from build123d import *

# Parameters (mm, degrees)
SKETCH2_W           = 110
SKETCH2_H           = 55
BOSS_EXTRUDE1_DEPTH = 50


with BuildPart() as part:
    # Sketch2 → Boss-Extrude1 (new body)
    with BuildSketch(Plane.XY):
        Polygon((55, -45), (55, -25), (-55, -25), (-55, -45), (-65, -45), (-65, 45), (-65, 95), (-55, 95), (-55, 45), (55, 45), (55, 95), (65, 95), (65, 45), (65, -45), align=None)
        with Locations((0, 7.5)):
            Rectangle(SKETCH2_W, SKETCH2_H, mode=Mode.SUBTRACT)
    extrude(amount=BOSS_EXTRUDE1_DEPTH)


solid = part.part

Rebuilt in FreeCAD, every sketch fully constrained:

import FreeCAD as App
import Part
import Sketcher
Q = App.Units.Quantity

doc = App.newDocument("Part")
body = doc.addObject("PartDesign::Body", "Body")

# Sketch on XY plane
sketch1 = body.newObject("Sketcher::SketchObject", "Sketch")
sketch1.AttachmentSupport = (doc.getObject("XY_Plane"), [""])
sketch1.MapMode = "FlatFace"
sketch1.addGeometry([
    Part.LineSegment(App.Vector(55, -25, 0), App.Vector(55, -45, 0)),  # 0
    Part.LineSegment(App.Vector(55, -45, 0), App.Vector(65, -45, 0)),  # 1
    Part.LineSegment(App.Vector(65, -45, 0), App.Vector(65, 95, 0)),  # 2
    Part.LineSegment(App.Vector(65, 95, 0), App.Vector(55, 95, 0)),  # 3
    Part.LineSegment(App.Vector(55, 95, 0), App.Vector(55, 45, 0)),  # 4
    Part.LineSegment(App.Vector(55, 45, 0), App.Vector(-55, 45, 0)),  # 5
    Part.LineSegment(App.Vector(-55, 45, 0), App.Vector(-55, 95, 0)),  # 6
    Part.LineSegment(App.Vector(-55, 95, 0), App.Vector(-65, 95, 0)),  # 7
    Part.LineSegment(App.Vector(-65, 95, 0), App.Vector(-65, -45, 0)),  # 8
    Part.LineSegment(App.Vector(-65, -45, 0), App.Vector(-55, -45, 0)),  # 9
    Part.LineSegment(App.Vector(-55, -45, 0), App.Vector(-55, -25, 0)),  # 10
    Part.LineSegment(App.Vector(-55, -25, 0), App.Vector(55, -25, 0)),  # 11
    Part.LineSegment(App.Vector(-55, -20, 0), App.Vector(-55, 35, 0)),  # 12
    Part.LineSegment(App.Vector(-55, 35, 0), App.Vector(55, 35, 0)),  # 13
    Part.LineSegment(App.Vector(55, 35, 0), App.Vector(55, -20, 0)),  # 14
    Part.LineSegment(App.Vector(55, -20, 0), App.Vector(-55, -20, 0)),  # 15
], False)
sketch1.addConstraint([
    Sketcher.Constraint("Coincident", 0, 2, 1, 1),
    Sketcher.Constraint("Coincident", 1, 2, 2, 1),
    Sketcher.Constraint("Coincident", 2, 2, 3, 1),
    Sketcher.Constraint("Coincident", 3, 2, 4, 1),
    Sketcher.Constraint("Coincident", 4, 2, 5, 1),
    Sketcher.Constraint("Coincident", 5, 2, 6, 1),
    Sketcher.Constraint("Coincident", 6, 2, 7, 1),
    Sketcher.Constraint("Coincident", 7, 2, 8, 1),
    Sketcher.Constraint("Coincident", 8, 2, 9, 1),
    Sketcher.Constraint("Coincident", 9, 2, 10, 1),
    Sketcher.Constraint("Coincident", 10, 2, 11, 1),
    Sketcher.Constraint("Coincident", 11, 2, 0, 1),
    Sketcher.Constraint("Coincident", 12, 2, 13, 1),
    Sketcher.Constraint("Coincident", 13, 2, 14, 1),
    Sketcher.Constraint("Coincident", 14, 2, 15, 1),
    Sketcher.Constraint("Coincident", 15, 2, 12, 1),
    Sketcher.Constraint("Vertical", 0),
    Sketcher.Constraint("Horizontal", 1),
    Sketcher.Constraint("Vertical", 2),
    Sketcher.Constraint("Horizontal", 3),
    Sketcher.Constraint("Vertical", 4),
    Sketcher.Constraint("Horizontal", 5),
    Sketcher.Constraint("Vertical", 6),
    Sketcher.Constraint("Horizontal", 7),
    Sketcher.Constraint("Vertical", 8),
    Sketcher.Constraint("Horizontal", 9),
    Sketcher.Constraint("Vertical", 10),
    Sketcher.Constraint("Horizontal", 11),
    Sketcher.Constraint("Vertical", 12),
    Sketcher.Constraint("Horizontal", 13),
    Sketcher.Constraint("Vertical", 14),
    Sketcher.Constraint("Horizontal", 15),
    Sketcher.Constraint("Symmetric", 0, 2, 5, 2, -1, 1),
    Sketcher.Constraint("Symmetric", 4, 2, 9, 2, -1, 1),
    Sketcher.Constraint("Symmetric", 3, 2, 6, 2, -2),
    Sketcher.Constraint("Vertical", 10, 2, 12, 2),
    Sketcher.Constraint("Vertical", 11, 2, 13, 2),
    Sketcher.Constraint("Equal", 3, 7),
    Sketcher.Constraint("DistanceX", 1, 1, 1, 2, Q("10 mm")),
    Sketcher.Constraint("DistanceX", 5, 2, 5, 1, Q("110 mm")),
    Sketcher.Constraint("DistanceY", 0, 2, 0, 1, Q("20 mm")),
    Sketcher.Constraint("DistanceY", 2, 1, 2, 2, Q("140 mm")),
    Sketcher.Constraint("DistanceY", 4, 2, 4, 1, Q("50 mm")),
    Sketcher.Constraint("DistanceY", 12, 1, 12, 2, Q("55 mm")),
    Sketcher.Constraint("DistanceY", -1, 1, 12, 2, Q("35 mm")),
])
pad1 = body.newObject("PartDesign::Pad", "Pad")
pad1.Profile = sketch1
pad1.Length = 50

doc.recompute()
